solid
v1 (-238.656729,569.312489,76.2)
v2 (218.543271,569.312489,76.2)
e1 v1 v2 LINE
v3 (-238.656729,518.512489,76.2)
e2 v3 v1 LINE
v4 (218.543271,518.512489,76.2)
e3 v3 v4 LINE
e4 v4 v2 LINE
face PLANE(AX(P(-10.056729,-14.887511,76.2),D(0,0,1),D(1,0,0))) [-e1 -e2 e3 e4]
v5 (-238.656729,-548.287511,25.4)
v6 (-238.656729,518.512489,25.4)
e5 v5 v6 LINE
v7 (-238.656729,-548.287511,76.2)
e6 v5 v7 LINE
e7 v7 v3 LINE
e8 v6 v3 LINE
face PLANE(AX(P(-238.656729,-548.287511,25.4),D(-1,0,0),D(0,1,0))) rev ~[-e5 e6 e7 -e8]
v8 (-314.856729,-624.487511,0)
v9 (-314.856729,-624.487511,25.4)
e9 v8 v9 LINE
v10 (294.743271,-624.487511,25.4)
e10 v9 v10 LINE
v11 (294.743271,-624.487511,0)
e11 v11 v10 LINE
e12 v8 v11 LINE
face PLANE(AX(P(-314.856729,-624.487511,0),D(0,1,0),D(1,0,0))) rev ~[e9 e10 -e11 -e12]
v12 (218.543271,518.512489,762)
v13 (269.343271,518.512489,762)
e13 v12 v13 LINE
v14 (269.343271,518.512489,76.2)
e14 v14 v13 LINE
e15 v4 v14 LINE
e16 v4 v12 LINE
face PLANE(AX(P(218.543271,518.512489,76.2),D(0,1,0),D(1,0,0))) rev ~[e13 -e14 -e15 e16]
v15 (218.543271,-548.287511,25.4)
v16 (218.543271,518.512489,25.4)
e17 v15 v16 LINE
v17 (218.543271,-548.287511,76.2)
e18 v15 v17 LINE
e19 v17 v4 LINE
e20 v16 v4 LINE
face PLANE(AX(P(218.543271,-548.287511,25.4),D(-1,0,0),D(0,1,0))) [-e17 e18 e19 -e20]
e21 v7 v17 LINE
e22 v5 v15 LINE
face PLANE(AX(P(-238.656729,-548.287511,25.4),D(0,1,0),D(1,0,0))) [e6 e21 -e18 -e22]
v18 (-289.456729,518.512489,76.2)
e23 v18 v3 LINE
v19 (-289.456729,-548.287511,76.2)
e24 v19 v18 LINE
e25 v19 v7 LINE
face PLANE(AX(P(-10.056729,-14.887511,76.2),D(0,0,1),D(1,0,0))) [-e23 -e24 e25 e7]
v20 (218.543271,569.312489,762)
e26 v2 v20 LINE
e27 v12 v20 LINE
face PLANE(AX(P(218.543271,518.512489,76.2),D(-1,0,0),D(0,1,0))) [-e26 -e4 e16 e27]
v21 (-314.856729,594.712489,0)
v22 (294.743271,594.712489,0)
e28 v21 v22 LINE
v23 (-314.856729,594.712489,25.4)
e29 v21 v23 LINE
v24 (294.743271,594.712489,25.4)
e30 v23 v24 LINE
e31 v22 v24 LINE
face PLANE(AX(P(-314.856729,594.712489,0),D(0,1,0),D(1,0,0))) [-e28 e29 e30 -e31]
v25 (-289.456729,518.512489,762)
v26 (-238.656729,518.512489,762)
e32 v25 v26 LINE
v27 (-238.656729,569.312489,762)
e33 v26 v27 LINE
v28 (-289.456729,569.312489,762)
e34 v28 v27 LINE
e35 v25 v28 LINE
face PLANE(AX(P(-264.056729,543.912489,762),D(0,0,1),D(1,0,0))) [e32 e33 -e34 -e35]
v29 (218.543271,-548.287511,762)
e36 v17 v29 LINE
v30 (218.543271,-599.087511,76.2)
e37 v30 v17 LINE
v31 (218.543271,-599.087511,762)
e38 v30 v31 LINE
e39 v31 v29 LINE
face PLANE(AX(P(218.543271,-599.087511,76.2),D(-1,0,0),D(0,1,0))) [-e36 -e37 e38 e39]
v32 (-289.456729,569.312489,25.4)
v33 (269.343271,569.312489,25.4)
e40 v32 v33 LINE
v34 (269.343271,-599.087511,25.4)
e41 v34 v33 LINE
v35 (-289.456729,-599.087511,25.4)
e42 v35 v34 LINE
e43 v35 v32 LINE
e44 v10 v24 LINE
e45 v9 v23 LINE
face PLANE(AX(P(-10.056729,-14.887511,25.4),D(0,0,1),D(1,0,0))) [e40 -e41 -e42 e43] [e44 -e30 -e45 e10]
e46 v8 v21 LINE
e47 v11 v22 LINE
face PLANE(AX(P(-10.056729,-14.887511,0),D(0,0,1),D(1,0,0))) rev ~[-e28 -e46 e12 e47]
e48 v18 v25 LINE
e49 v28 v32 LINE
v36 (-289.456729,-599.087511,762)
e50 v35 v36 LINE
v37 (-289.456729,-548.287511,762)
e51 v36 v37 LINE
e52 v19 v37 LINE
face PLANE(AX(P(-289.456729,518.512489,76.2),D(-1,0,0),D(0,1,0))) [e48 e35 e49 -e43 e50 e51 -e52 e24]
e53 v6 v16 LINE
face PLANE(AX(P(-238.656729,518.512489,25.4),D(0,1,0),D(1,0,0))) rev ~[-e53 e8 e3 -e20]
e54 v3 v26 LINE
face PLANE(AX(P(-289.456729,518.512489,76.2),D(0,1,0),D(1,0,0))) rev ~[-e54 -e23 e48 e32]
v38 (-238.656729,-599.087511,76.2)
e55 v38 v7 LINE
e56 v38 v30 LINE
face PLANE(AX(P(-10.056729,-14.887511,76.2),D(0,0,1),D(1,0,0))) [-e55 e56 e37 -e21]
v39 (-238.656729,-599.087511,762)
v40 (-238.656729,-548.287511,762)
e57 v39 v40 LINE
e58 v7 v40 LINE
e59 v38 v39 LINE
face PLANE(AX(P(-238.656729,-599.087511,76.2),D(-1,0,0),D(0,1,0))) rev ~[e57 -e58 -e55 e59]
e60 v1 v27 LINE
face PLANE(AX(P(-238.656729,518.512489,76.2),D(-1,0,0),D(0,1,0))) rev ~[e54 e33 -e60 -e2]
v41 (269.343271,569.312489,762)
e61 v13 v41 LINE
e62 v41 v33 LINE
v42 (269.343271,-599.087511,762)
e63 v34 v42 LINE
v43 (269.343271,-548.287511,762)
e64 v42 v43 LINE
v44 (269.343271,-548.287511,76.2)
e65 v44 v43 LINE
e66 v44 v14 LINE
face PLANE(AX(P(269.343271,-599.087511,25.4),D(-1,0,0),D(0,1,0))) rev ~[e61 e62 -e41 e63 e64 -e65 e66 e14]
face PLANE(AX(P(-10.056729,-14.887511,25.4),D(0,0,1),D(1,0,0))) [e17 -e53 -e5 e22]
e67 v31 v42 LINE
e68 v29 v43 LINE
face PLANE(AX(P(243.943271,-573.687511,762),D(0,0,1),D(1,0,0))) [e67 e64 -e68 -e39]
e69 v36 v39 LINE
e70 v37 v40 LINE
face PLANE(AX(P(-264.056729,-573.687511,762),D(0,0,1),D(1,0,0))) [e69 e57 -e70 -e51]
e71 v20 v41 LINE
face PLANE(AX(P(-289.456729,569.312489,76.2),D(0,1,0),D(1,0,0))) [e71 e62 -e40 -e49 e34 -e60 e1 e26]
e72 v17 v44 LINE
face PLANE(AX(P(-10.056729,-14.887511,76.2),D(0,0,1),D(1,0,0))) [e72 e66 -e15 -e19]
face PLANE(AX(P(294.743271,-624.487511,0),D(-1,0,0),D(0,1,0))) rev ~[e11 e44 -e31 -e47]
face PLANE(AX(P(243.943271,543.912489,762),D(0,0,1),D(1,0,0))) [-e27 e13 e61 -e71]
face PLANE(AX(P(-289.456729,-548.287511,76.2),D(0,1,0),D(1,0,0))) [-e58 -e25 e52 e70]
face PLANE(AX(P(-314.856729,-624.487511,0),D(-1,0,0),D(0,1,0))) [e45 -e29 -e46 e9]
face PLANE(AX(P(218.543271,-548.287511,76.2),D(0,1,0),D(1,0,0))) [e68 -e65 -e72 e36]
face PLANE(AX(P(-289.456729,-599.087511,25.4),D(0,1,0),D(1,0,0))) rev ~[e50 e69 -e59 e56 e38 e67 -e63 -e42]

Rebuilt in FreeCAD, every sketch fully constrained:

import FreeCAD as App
import Part
import Sketcher

V = App.Vector
Q = App.Units.Quantity


def add_polygon(sketch, points):
    """Adds a closed chain of lines whose ends are joined by coincident constraints."""
    first, n = sketch.GeometryCount, len(points)
    for a, b in zip(points, points[1:] + points[:1]):
        sketch.addGeometry(Part.LineSegment(App.Vector(*a, 0), App.Vector(*b, 0)), False)
    for i in range(n):
        sketch.addConstraint(Sketcher.Constraint("Coincident", first + i, 2, first + (i + 1) % n, 1))

doc = App.newDocument("Part")
body = doc.addObject("PartDesign::Body", "Body")

# Sketch on XY plane
sketch1 = body.newObject("Sketcher::SketchObject", "Sketch")
sketch1.AttachmentSupport = (doc.getObject("XY_Plane"), [""])
sketch1.MapMode = "FlatFace"
add_polygon(sketch1, [(-315, 595), (-315, -624), (295, -624), (295, 595)])  # lines 0-3
sketch1.addConstraint([
    Sketcher.Constraint("Vertical", 0),
    Sketcher.Constraint("Horizontal", 1),
    Sketcher.Constraint("Vertical", 2),
    Sketcher.Constraint("Horizontal", 3),
    Sketcher.Constraint("DistanceX", 1, 1, 1, 2, Q("24 in")),
    Sketcher.Constraint("DistanceY", 0, 2, 0, 1, Q("48 in")),
    Sketcher.Constraint("DistanceX", 0, 2, -1, 1, 314.856729),
    Sketcher.Constraint("DistanceY", 0, 2, -1, 1, 624.487511),
])
pad1 = body.newObject("PartDesign::Pad", "Pad")
pad1.Profile = sketch1
pad1.Length = Q("1 in")

# Sketch on XY plane
sketch2 = body.newObject("Sketcher::SketchObject", "Sketch001")
sketch2.AttachmentSupport = (doc.getObject("XY_Plane"), [""])
sketch2.MapMode = "FlatFace"
sketch2.AttachmentOffset = App.Placement(V(0, 0, 1 * 25.4), App.Rotation())
add_polygon(sketch2, [(-289, 569), (-289, -599), (269, -599), (269, 569)])  # lines 0-3
add_polygon(sketch2, [(219, -548), (-239, -548), (-239, 519), (219, 519)])  # lines 4-7
sketch2.addConstraint([
    Sketcher.Constraint("Vertical", 0),
    Sketcher.Constraint("Horizontal", 1),
    Sketcher.Constraint("Vertical", 2),
    Sketcher.Constraint("Horizontal", 3),
    Sketcher.Constraint("Horizontal", 4),
    Sketcher.Constraint("Vertical", 5),
    Sketcher.Constraint("Horizontal", 6),
    Sketcher.Constraint("Vertical", 7),
    Sketcher.Constraint("DistanceX", 1, 1, 1, 2, Q("22 in")),
    Sketcher.Constraint("DistanceX", 4, 2, 4, 1, Q("18 in")),
    Sketcher.Constraint("DistanceY", 0, 2, 0, 1, Q("46 in")),
    Sketcher.Constraint("DistanceY", 5, 1, 5, 2, Q("42 in")),
    Sketcher.Constraint("DistanceX", 0, 2, 4, 2, Q("2 in")),
    Sketcher.Constraint("DistanceY", 0, 2, 4, 2, Q("2 in")),
    Sketcher.Constraint("DistanceX", 0, 2, -1, 1, 289.456729),
    Sketcher.Constraint("DistanceY", 0, 2, -1, 1, 599.087511),
])
pad2 = body.newObject("PartDesign::Pad", "Pad001")
pad2.Profile = sketch2
pad2.Length = Q("2 in")

# Sketch on XY plane
sketch3 = body.newObject("Sketcher::SketchObject", "Sketch002")
sketch3.AttachmentSupport = (doc.getObject("XY_Plane"), [""])
sketch3.MapMode = "FlatFace"
sketch3.AttachmentOffset = App.Placement(V(0, 0, 3 * 25.4), App.Rotation())
add_polygon(sketch3, [(-289, 569), (-289, 519), (-239, 519), (-239, 569)])  # lines 0-3
add_polygon(sketch3, [(219, 569), (219, 519), (269, 519), (269, 569)])  # lines 4-7
add_polygon(sketch3, [(-289, -548), (-289, -599), (-239, -599), (-239, -548)])  # lines 8-11
add_polygon(sketch3, [(219, -548), (219, -599), (269, -599), (269, -548)])  # lines 12-15
sketch3.addConstraint([
    Sketcher.Constraint("Vertical", 0),
    Sketcher.Constraint("Horizontal", 1),
    Sketcher.Constraint("Vertical", 2),
    Sketcher.Constraint("Horizontal", 3),
    Sketcher.Constraint("Vertical", 4),
    Sketcher.Constraint("Horizontal", 5),
    Sketcher.Constraint("Vertical", 6),
    Sketcher.Constraint("Horizontal", 7),
    Sketcher.Constraint("Vertical", 8),
    Sketcher.Constraint("Horizontal", 9),
    Sketcher.Constraint("Vertical", 10),
    Sketcher.Constraint("Horizontal", 11),
    Sketcher.Constraint("Vertical", 12),
    Sketcher.Constraint("Horizontal", 13),
    Sketcher.Constraint("Vertical", 14),
    Sketcher.Constraint("Horizontal", 15),
    Sketcher.Constraint("Horizontal", 1, 2, 4, 2),
    Sketcher.Constraint("Horizontal", 3, 2, 6, 2),
    Sketcher.Constraint("Horizontal", 9, 2, 12, 2),
    Sketcher.Constraint("Horizontal", 11, 2, 14, 2),
    Sketcher.Constraint("Vertical", 3, 2, 8, 2),
    Sketcher.Constraint("Vertical", 2, 2, 9, 2),
    Sketcher.Constraint("Vertical", 7, 2, 12, 2),
    Sketcher.Constraint("Vertical", 6, 2, 13, 2),
    Sketcher.Constraint("Equal", 3, 5),
    Sketcher.Constraint("Equal", 15, 0),
    Sketcher.Constraint("Equal", 6, 8),
    Sketcher.Constraint("DistanceX", 1, 1, 1, 2, Q("2 in")),
    Sketcher.Constraint("DistanceX", 1, 2, 4, 2, Q("18 in")),
    Sketcher.Constraint("DistanceY", 8, 2, 0, 2, Q("44 in")),
    Sketcher.Constraint("DistanceX", 0, 2, -1, 1, 289.456729),
    Sketcher.Constraint("DistanceY", -1, 1, 0, 2, 518.512489),
])
pad3 = body.newObject("PartDesign::Pad", "Pad002")
pad3.Profile = sketch3
pad3.Length = Q("27 in")

doc.recompute()
